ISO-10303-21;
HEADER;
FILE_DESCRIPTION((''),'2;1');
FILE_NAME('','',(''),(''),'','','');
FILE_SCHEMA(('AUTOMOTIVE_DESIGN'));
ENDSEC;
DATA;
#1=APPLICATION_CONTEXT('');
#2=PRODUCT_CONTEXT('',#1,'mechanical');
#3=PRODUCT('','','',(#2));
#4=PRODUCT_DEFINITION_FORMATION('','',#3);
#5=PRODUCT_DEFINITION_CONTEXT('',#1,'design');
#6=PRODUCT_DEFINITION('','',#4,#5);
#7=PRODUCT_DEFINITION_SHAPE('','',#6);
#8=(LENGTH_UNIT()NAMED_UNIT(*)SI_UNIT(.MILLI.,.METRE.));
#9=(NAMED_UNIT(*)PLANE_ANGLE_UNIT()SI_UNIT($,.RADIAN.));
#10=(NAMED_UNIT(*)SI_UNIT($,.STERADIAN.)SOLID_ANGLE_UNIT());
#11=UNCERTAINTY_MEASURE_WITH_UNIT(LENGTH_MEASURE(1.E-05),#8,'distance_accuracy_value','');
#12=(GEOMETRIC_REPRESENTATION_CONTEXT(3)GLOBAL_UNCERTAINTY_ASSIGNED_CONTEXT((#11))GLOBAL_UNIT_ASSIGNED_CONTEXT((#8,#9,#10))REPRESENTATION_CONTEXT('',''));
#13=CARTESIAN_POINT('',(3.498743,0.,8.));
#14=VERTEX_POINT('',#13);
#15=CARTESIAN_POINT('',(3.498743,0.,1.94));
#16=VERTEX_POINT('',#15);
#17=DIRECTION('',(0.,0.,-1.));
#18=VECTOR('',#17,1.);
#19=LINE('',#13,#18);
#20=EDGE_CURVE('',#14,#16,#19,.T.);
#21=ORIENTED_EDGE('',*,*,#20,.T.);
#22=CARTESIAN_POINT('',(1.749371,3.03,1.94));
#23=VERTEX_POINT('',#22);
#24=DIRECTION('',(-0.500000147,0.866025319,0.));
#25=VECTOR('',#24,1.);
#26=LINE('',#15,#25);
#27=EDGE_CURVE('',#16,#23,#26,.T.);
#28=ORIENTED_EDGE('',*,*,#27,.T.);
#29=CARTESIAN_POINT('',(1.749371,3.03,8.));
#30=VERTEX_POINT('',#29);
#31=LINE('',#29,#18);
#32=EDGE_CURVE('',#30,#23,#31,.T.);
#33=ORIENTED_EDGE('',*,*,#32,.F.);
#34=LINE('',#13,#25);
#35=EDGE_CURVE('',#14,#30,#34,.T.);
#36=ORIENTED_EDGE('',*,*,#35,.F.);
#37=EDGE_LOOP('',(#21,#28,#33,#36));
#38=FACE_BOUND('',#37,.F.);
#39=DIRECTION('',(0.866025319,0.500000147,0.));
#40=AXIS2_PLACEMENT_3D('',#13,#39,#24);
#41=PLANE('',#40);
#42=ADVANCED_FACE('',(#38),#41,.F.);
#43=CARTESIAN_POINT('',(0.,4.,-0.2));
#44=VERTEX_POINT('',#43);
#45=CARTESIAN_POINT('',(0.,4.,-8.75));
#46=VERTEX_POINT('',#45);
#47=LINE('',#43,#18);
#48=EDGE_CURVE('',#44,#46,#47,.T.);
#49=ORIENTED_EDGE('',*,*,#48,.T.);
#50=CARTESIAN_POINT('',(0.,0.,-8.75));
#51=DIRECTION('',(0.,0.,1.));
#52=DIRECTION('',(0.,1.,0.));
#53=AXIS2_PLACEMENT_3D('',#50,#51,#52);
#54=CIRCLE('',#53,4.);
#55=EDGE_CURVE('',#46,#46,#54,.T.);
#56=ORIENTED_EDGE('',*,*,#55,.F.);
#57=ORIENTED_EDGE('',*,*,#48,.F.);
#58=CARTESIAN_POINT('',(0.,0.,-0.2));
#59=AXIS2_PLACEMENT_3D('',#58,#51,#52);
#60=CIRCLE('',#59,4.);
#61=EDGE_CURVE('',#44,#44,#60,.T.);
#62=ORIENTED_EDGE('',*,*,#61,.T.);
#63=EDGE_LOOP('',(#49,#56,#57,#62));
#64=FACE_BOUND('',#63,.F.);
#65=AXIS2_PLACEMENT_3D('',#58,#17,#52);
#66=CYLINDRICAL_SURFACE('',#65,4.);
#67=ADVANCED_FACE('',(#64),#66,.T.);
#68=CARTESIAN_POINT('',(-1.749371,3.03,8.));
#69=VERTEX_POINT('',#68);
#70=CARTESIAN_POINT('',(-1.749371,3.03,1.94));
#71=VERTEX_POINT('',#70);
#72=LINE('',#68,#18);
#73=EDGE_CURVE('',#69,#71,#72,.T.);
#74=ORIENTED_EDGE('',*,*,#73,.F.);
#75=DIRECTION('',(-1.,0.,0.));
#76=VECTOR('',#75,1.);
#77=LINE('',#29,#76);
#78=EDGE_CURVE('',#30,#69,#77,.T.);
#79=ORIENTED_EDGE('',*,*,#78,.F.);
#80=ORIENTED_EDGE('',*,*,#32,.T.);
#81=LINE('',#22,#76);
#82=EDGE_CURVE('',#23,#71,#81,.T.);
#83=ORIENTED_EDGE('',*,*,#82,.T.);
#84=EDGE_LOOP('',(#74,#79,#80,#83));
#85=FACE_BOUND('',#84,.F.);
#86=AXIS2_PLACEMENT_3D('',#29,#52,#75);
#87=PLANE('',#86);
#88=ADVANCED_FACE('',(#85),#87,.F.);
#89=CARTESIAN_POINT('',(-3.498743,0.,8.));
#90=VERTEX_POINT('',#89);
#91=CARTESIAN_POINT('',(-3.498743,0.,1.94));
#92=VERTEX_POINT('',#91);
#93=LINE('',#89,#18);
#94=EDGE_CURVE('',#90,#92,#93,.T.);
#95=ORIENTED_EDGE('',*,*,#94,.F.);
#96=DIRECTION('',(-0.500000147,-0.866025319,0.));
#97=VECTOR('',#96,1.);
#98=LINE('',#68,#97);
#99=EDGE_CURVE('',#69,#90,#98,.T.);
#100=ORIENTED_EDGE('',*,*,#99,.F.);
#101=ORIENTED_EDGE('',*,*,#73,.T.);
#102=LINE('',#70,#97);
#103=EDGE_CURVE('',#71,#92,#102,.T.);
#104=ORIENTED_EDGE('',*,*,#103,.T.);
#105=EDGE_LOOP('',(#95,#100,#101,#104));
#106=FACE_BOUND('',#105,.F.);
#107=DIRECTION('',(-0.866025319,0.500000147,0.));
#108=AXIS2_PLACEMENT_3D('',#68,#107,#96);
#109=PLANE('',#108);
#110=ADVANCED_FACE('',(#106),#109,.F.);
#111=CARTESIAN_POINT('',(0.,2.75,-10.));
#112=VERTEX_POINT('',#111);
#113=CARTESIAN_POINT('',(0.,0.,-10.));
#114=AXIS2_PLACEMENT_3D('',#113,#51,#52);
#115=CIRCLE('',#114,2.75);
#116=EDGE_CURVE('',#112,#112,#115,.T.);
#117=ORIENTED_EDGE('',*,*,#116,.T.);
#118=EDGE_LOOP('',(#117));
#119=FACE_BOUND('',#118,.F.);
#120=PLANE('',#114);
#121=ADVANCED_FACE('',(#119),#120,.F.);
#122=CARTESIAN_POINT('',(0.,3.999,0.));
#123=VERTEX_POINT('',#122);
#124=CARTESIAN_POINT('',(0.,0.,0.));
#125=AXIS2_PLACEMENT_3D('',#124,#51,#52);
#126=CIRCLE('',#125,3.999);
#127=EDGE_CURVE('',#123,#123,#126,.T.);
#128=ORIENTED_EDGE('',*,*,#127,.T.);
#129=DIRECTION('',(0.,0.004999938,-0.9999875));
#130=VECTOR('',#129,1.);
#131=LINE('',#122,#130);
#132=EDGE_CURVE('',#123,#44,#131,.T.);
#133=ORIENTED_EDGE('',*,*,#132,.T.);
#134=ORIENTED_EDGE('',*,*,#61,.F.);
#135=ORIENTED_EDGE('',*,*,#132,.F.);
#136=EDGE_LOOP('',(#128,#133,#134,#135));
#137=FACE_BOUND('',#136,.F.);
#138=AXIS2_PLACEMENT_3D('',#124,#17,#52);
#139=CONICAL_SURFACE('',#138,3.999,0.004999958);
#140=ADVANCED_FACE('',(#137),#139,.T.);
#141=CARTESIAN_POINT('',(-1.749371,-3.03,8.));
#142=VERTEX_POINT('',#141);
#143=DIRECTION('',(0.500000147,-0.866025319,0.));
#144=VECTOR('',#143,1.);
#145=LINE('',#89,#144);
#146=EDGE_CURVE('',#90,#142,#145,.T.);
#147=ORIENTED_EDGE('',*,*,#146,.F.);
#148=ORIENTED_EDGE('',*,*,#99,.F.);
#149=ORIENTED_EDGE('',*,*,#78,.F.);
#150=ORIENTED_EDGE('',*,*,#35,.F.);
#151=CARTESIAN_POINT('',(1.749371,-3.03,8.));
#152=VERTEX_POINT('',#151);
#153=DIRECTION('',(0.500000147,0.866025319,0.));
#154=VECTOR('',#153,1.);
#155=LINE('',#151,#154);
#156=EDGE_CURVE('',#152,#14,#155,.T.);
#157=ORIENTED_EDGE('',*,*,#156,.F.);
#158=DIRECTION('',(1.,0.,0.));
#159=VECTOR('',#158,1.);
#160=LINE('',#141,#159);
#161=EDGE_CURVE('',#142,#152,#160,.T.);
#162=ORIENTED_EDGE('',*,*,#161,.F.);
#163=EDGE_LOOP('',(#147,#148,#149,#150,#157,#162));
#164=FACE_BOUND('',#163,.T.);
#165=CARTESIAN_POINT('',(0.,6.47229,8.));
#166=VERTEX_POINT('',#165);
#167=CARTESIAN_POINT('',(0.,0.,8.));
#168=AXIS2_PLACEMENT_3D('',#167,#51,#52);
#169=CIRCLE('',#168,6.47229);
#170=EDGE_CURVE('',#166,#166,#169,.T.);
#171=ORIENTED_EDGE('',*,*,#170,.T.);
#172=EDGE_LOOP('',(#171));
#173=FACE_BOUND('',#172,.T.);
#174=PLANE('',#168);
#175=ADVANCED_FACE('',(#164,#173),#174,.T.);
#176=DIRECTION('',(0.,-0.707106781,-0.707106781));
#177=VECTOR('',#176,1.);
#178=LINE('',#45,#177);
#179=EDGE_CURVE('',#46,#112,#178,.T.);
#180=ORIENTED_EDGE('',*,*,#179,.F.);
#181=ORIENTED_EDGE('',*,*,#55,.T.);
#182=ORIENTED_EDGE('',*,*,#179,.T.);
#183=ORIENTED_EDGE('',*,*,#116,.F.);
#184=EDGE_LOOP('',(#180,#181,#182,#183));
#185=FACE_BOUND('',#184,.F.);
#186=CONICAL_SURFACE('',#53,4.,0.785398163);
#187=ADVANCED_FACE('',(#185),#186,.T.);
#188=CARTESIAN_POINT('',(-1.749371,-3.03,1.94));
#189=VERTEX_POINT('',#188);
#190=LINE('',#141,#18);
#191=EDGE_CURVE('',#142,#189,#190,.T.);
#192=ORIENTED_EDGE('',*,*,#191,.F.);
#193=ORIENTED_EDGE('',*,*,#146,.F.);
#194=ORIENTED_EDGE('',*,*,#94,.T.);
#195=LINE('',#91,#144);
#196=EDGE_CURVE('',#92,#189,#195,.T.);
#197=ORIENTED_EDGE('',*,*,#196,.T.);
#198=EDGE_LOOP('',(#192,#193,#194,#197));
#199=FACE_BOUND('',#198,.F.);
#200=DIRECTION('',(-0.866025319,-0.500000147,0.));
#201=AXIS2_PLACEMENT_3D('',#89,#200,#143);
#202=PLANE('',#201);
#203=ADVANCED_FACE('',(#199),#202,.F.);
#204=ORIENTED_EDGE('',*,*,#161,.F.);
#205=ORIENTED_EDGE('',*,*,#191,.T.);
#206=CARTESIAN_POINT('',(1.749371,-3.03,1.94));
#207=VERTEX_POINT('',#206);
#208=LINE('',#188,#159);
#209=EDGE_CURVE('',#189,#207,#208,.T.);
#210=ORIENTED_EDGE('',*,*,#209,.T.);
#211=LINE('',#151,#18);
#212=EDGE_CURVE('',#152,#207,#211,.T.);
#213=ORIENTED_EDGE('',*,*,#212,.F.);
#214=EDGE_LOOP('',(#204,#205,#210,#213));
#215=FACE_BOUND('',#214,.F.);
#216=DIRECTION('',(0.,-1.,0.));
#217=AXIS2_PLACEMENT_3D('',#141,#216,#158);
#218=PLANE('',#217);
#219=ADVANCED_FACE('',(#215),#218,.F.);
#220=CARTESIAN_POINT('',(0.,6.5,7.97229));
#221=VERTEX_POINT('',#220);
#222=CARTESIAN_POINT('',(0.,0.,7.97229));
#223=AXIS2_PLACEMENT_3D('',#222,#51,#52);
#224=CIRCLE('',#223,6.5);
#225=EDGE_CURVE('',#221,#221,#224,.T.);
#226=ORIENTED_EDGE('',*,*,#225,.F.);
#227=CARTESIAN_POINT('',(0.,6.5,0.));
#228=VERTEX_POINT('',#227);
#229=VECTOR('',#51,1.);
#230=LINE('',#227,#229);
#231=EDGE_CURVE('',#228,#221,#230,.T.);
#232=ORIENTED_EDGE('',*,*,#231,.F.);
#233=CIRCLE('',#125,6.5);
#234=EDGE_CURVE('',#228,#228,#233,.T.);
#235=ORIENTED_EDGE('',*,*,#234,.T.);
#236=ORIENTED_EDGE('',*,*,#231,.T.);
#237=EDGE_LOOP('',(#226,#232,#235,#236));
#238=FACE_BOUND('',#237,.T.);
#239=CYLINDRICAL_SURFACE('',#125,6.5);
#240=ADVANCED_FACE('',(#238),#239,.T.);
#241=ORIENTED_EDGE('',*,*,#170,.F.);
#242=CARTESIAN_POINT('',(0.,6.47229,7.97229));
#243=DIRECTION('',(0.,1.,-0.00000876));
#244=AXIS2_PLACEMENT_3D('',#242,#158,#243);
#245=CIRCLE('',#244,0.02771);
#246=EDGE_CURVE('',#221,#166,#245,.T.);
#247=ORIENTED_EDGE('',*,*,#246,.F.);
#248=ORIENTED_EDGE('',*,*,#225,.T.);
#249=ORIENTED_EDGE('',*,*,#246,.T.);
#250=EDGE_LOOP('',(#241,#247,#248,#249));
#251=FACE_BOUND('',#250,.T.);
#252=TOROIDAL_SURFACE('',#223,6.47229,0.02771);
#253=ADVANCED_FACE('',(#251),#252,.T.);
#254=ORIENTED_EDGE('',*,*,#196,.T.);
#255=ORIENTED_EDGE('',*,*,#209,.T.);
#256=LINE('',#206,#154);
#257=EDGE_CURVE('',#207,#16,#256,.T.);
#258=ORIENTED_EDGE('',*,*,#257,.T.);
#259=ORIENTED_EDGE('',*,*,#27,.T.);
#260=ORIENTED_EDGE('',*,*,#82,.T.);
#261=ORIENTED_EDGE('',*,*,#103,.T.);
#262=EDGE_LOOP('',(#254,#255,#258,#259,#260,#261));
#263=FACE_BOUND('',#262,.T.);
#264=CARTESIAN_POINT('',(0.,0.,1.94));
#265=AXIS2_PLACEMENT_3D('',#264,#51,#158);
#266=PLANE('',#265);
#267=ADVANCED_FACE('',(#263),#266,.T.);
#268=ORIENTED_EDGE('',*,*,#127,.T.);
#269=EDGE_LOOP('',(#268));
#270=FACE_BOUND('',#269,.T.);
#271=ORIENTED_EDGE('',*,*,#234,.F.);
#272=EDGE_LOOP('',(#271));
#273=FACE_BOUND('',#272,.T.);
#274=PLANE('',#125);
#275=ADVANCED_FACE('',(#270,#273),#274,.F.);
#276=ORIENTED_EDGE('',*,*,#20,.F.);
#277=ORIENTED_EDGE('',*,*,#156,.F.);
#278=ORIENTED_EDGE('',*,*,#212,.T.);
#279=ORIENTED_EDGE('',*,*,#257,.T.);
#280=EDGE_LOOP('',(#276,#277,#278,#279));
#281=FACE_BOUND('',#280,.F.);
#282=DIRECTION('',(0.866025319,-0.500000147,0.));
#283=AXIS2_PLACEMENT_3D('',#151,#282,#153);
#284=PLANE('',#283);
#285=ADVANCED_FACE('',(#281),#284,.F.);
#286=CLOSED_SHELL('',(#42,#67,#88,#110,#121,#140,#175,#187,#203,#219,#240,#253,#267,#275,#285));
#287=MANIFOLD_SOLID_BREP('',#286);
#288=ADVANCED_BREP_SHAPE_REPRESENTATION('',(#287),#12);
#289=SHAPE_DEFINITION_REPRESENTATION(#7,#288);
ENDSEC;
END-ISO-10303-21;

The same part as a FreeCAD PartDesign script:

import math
import FreeCAD as App
import Part
import Sketcher

V = App.Vector
Q = App.Units.Quantity

doc = App.newDocument("Part")
body = doc.addObject("PartDesign::Body", "Body")

# Sketch on YZ plane
sketch1 = body.newObject("Sketcher::SketchObject", "Sketch")
sketch1.AttachmentSupport = (doc.getObject("YZ_Plane"), [""])
sketch1.MapMode = "FlatFace"
sketch1.addGeometry([
    Part.LineSegment(V(3.999, 0, 0), V(6.5, 0, 0)),  # 0
    Part.LineSegment(V(6.5, 0, 0), V(6.5, 7.972, 0)),  # 1
    Part.ArcOfCircle(Part.Circle(V(6.472, 7.972, 0), V(0, 0, 1), 0.028), math.radians(0), math.radians(90)),  # 2
    Part.LineSegment(V(6.472, 8, 0), V(0, 8, 0)),  # 3
    Part.LineSegment(V(0, 8, 0), V(0, -10, 0)),  # 4
    Part.LineSegment(V(0, -10, 0), V(2.75, -10, 0)),  # 5
    Part.LineSegment(V(2.75, -10, 0), V(4, -8.75, 0)),  # 6
    Part.LineSegment(V(4, -8.75, 0), V(4, -0.2, 0)),  # 7
    Part.LineSegment(V(4, -0.2, 0), V(3.999, 0, 0)),  # 8
], False)
sketch1.addConstraint([
    Sketcher.Constraint("Coincident", 0, 2, 1, 1),
    Sketcher.Constraint("Coincident", 1, 2, 2, 1),
    Sketcher.Constraint("Coincident", 2, 2, 3, 1),
    Sketcher.Constraint("Coincident", 3, 2, 4, 1),
    Sketcher.Constraint("Coincident", 4, 2, 5, 1),
    Sketcher.Constraint("Coincident", 5, 2, 6, 1),
    Sketcher.Constraint("Coincident", 6, 2, 7, 1),
    Sketcher.Constraint("Coincident", 7, 2, 8, 1),
    Sketcher.Constraint("Coincident", 8, 2, 0, 1),
    Sketcher.Constraint("Horizontal", 0),
    Sketcher.Constraint("Vertical", 1),
    Sketcher.Constraint("Horizontal", 3),
    Sketcher.Constraint("Vertical", 4),
    Sketcher.Constraint("Horizontal", 5),
    Sketcher.Constraint("Vertical", 7),
    Sketcher.Constraint("PointOnObject", 0, 2, -1),
    Sketcher.Constraint("PointOnObject", 3, 2, -2),
    Sketcher.Constraint("Horizontal", 2, 3, 1, 2),
    Sketcher.Constraint("DistanceY", 4, 2, 4, 1, Q("18 mm")),
    Sketcher.Constraint("Angle", 6, Q("45 deg")),
    Sketcher.Constraint("DistanceY", -1, 1, 2, 2, Q("8 mm")),
    Sketcher.Constraint("DistanceX", -1, 1, 6, 2, Q("4 mm")),
    Sketcher.Constraint("DistanceX", 5, 1, 5, 2, Q("2.75 mm")),
    Sketcher.Constraint("DistanceY", 7, 1, 7, 2, Q("8.55 mm")),
    Sketcher.Constraint("DistanceX", -1, 1, 0, 2, Q("6.5 mm")),
    Sketcher.Constraint("DistanceX", 0, 1, 0, 2, Q("2.501 mm")),
    Sketcher.Constraint("Radius", 2, Q("0.02771 mm")),
    Sketcher.Constraint("DistanceX", 3, 2, 3, 1, Q("6.47229 mm")),
])
revolution = body.newObject("PartDesign::Revolution", "Revolution")
revolution.Profile = sketch1
revolution.ReferenceAxis = (sketch1, ["V_Axis"])
revolution.Angle = 360

# Sketch on XY plane
sketch2 = body.newObject("Sketcher::SketchObject", "Sketch001")
sketch2.AttachmentSupport = (doc.getObject("XY_Plane"), [""])
sketch2.MapMode = "FlatFace"
sketch2.AttachmentOffset = App.Placement(V(0, 0, 8), App.Rotation())
sketch2.addGeometry([
    Part.LineSegment(V(3.5, 0, 0), V(1.7, 3, 0)),  # 0
    Part.LineSegment(V(1.7, 3, 0), V(-1.7, 3, 0)),  # 1
    Part.LineSegment(V(-1.7, 3, 0), V(-3.5, 0, 0)),  # 2
    Part.LineSegment(V(-3.5, 0, 0), V(-1.7, -3, 0)),  # 3
    Part.LineSegment(V(-1.7, -3, 0), V(1.7, -3, 0)),  # 4
    Part.LineSegment(V(1.7, -3, 0), V(3.5, 0, 0)),  # 5
], False)
sketch2.addConstraint([
    Sketcher.Constraint("Coincident", 0, 2, 1, 1),
    Sketcher.Constraint("Coincident", 1, 2, 2, 1),
    Sketcher.Constraint("Coincident", 2, 2, 3, 1),
    Sketcher.Constraint("Coincident", 3, 2, 4, 1),
    Sketcher.Constraint("Coincident", 4, 2, 5, 1),
    Sketcher.Constraint("Coincident", 5, 2, 0, 1),
    Sketcher.Constraint("Horizontal", 1),
    Sketcher.Constraint("Horizontal", 4),
    Sketcher.Constraint("Symmetric", 0, 2, 3, 2, -1, 1),
    Sketcher.Constraint("Symmetric", 2, 2, 5, 2, -1, 1),
    Sketcher.Constraint("PointOnObject", 2, 2, -1),
    Sketcher.Constraint("Parallel", 2, 5),
    Sketcher.Constraint("Vertical", 1, 2, 3, 2),
    Sketcher.Constraint("Angle", 0, Q("120.00001 deg")),
    Sketcher.Constraint("DistanceY", -1, 1, 0, 2, Q("3.03 mm")),
    Sketcher.Constraint("DistanceX", 1, 2, 1, 1, Q("3.498742 mm")),
])
pocket1 = body.newObject("PartDesign::Pocket", "Pocket")
pocket1.Profile = sketch2
pocket1.Length = 6.06

doc.recompute()
